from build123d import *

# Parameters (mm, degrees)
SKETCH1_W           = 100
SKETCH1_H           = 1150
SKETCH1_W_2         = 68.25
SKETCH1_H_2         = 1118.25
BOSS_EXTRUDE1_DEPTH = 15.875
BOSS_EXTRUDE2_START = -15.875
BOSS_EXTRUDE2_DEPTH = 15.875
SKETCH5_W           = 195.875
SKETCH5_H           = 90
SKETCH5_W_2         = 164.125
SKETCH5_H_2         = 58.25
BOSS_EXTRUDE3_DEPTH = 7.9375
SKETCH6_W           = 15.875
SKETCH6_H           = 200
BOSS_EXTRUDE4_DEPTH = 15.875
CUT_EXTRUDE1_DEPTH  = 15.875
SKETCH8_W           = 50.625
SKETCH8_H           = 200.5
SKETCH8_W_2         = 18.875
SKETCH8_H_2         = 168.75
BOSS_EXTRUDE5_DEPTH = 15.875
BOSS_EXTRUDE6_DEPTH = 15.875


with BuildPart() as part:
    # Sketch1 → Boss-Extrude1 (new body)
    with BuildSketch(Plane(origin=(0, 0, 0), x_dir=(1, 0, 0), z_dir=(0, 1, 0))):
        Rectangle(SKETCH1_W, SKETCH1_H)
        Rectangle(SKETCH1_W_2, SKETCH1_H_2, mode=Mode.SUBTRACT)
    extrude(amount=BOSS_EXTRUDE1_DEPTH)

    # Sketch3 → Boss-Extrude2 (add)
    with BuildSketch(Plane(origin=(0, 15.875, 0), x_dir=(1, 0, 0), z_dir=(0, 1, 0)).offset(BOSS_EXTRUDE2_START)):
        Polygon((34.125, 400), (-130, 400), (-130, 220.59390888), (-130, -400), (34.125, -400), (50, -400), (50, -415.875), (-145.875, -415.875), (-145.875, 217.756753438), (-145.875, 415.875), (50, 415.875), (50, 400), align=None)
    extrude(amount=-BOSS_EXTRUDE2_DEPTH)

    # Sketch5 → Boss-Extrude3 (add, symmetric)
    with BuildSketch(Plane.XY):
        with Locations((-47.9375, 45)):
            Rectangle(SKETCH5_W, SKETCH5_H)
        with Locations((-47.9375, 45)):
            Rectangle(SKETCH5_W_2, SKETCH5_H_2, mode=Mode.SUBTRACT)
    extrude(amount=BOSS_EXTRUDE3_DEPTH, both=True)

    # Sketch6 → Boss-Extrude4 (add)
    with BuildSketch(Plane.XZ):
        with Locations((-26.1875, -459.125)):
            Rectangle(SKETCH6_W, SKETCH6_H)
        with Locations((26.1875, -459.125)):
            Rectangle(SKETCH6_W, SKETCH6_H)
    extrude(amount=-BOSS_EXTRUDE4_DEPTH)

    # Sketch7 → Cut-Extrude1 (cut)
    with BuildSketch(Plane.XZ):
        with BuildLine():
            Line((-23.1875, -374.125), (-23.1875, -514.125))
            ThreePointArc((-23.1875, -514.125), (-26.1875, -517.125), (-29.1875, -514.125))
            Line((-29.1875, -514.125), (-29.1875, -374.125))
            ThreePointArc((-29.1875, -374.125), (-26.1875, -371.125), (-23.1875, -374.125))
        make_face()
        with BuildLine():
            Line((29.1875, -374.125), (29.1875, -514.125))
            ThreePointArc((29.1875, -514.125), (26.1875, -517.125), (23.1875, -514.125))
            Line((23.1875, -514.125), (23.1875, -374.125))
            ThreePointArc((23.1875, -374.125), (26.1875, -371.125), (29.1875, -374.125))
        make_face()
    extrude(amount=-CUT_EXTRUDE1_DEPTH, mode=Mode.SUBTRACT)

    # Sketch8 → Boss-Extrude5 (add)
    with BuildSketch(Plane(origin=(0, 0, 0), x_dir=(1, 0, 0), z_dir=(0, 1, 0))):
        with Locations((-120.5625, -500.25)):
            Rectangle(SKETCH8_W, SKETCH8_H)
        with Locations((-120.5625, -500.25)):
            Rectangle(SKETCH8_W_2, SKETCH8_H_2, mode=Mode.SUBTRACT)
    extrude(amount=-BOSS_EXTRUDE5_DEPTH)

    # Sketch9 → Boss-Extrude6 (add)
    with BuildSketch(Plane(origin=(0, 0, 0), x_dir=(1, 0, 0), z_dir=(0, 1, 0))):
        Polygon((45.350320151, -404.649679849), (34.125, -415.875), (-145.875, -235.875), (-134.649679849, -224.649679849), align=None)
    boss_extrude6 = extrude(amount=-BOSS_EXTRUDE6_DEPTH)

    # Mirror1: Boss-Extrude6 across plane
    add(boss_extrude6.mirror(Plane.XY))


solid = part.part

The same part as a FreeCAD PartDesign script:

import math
import FreeCAD as App
import Part
import Sketcher

V = App.Vector
Q = App.Units.Quantity

doc = App.newDocument("Part")
params = doc.addObject("Spreadsheet::Sheet", "Params")
for row, (alias, value) in enumerate([
    ("sketch1_width", "100 mm"),
    ("sketch1_height", "1150 mm"),
    ("sketch1_width2", "68.25 mm"),
    ("sketch1_height2", "1118.25 mm"),
    ("pad1_length", "15.875 mm"),
    ("sketch2_width", "180 mm"),
    ("sketch2_height", "800 mm"),
    ("sketch2_height2", "831.75 mm"),
    ("pad2_length", "15.875 mm"),
    ("sketch3_height", "90 mm"),
    ("sketch3_height2", "58.25 mm"),
    ("pad3_length", "15.875 mm"),
    ("sketch4_height", "200 mm"),
    ("pad4_length", "15.875 mm"),
    ("sketch5_radius", "3 mm"),
    ("sketch5_height", "140 mm"),
    ("pocket1_length", "15.875 mm"),
    ("sketch6_height", "200.5 mm"),
    ("sketch6_height2", "168.75 mm"),
    ("pad5_length", "15.875 mm"),
    ("pad6_length", "15.875 mm"),
], start=1):
    params.set(f"A{row}", alias)
    params.set(f"B{row}", "=" + value)
    params.setAlias(f"B{row}", alias)

body = doc.addObject("PartDesign::Body", "Body")

sketch1 = doc.addObject("Sketcher::SketchObject", "Sketch")
body.addObject(sketch1)
sketch1.AttachmentSupport = (doc.XZ_Plane, [""])
sketch1.MapMode = "FlatFace"
sketch1.addGeometry([
    Part.LineSegment(V(-50, -575, 0), V(-50, 575, 0)),
    Part.LineSegment(V(-50, 575, 0), V(50, 575, 0)),
    Part.LineSegment(V(50, 575, 0), V(50, -575, 0)),
    Part.LineSegment(V(50, -575, 0), V(-50, -575, 0)),
    Part.LineSegment(V(34.125, 559.125, 0), V(-34.125, 559.125, 0)),
    Part.LineSegment(V(-34.125, 559.125, 0), V(-34.125, -559.125, 0)),
    Part.LineSegment(V(-34.125, -559.125, 0), V(34.125, -559.125, 0)),
    Part.LineSegment(V(34.125, -559.125, 0), V(34.125, 559.125, 0)),
], False)
sketch1.addConstraint([
    Sketcher.Constraint("Coincident", 0, 2, 1, 1),
    Sketcher.Constraint("Coincident", 1, 2, 2, 1),
    Sketcher.Constraint("Coincident", 2, 2, 3, 1),
    Sketcher.Constraint("Coincident", 3, 2, 0, 1),
    Sketcher.Constraint("Coincident", 4, 2, 5, 1),
    Sketcher.Constraint("Coincident", 5, 2, 6, 1),
    Sketcher.Constraint("Coincident", 6, 2, 7, 1),
    Sketcher.Constraint("Coincident", 7, 2, 4, 1),
    Sketcher.Constraint("Vertical", 0),
    Sketcher.Constraint("Horizontal", 1),
    Sketcher.Constraint("Vertical", 2),
    Sketcher.Constraint("Horizontal", 3),
    Sketcher.Constraint("Horizontal", 4),
    Sketcher.Constraint("Vertical", 5),
    Sketcher.Constraint("Horizontal", 6),
    Sketcher.Constraint("Vertical", 7),
    Sketcher.Constraint("Symmetric", 0, 2, 2, 2, -1, 1),
    Sketcher.Constraint("Symmetric", 4, 2, 6, 2, -1, 1),
    Sketcher.Constraint("DistanceX", 1, 1, 1, 2, Q("100 mm")),
    Sketcher.Constraint("DistanceY", 0, 1, 0, 2, Q("1150 mm")),
    Sketcher.Constraint("DistanceX", 4, 2, 4, 1, Q("68.25 mm")),
    Sketcher.Constraint("DistanceY", 5, 2, 5, 1, Q("1118.25 mm")),
])
sketch1.setExpression("Constraints[18]", "Params.sketch1_width")
sketch1.setExpression("Constraints[19]", "Params.sketch1_height")
sketch1.setExpression("Constraints[20]", "Params.sketch1_width2")
sketch1.setExpression("Constraints[21]", "Params.sketch1_height2")
pad1 = doc.addObject("PartDesign::Pad", "Pad")
body.addObject(pad1)
pad1.Profile = sketch1
pad1.setExpression("Length", "Params.pad1_length")
pad1.Reversed = True

sketch2 = doc.addObject("Sketcher::SketchObject", "Sketch001")
body.addObject(sketch2)
sketch2.AttachmentSupport = (doc.XZ_Plane, [""])
sketch2.MapMode = "FlatFace"
sketch2.addGeometry([
    Part.LineSegment(V(-130, -400, 0), V(50, -400, 0)),
    Part.LineSegment(V(50, -400, 0), V(50, -415.875, 0)),
    Part.LineSegment(V(50, -415.875, 0), V(-145.875, -415.875, 0)),
    Part.LineSegment(V(-145.875, -415.875, 0), V(-145.875, 415.875, 0)),
    Part.LineSegment(V(-145.875, 415.875, 0), V(50, 415.875, 0)),
    Part.LineSegment(V(50, 415.875, 0), V(50, 400, 0)),
    Part.LineSegment(V(50, 400, 0), V(-130, 400, 0)),
    Part.LineSegment(V(-130, 400, 0), V(-130, -400, 0)),
], False)
sketch2.addConstraint([
    Sketcher.Constraint("Coincident", 0, 2, 1, 1),
    Sketcher.Constraint("Coincident", 1, 2, 2, 1),
    Sketcher.Constraint("Coincident", 2, 2, 3, 1),
    Sketcher.Constraint("Coincident", 3, 2, 4, 1),
    Sketcher.Constraint("Coincident", 4, 2, 5, 1),
    Sketcher.Constraint("Coincident", 5, 2, 6, 1),
    Sketcher.Constraint("Coincident", 6, 2, 7, 1),
    Sketcher.Constraint("Coincident", 7, 2, 0, 1),
    Sketcher.Constraint("Horizontal", 0),
    Sketcher.Constraint("Vertical", 1),
    Sketcher.Constraint("Horizontal", 2),
    Sketcher.Constraint("Vertical", 3),
    Sketcher.Constraint("Horizontal", 4),
    Sketcher.Constraint("Vertical", 5),
    Sketcher.Constraint("Horizontal", 6),
    Sketcher.Constraint("Vertical", 7),
    Sketcher.Constraint("Symmetric", 1, 2, 4, 2, -1),
    Sketcher.Constraint("Equal", 1, 5),
    Sketcher.Constraint("DistanceX", 0, 1, 0, 2, Q("180 mm")),
    Sketcher.Constraint("DistanceY", 7, 2, 7, 1, Q("800 mm")),
    Sketcher.Constraint("DistanceX", -1, 1, 0, 2, Q("50 mm")),
    Sketcher.Constraint("DistanceY", 3, 1, 3, 2, Q("831.75 mm")),
    Sketcher.Constraint("DistanceX", 2, 2, 2, 1, Q("195.875 mm")),
])
sketch2.setExpression("Constraints[18]", "Params.sketch2_width")
sketch2.setExpression("Constraints[19]", "Params.sketch2_height")
sketch2.setExpression("Constraints[21]", "Params.sketch2_height2")
pad2 = doc.addObject("PartDesign::Pad", "Pad001")
body.addObject(pad2)
pad2.Profile = sketch2
pad2.setExpression("Length", "Params.pad2_length")

sketch3 = doc.addObject("Sketcher::SketchObject", "Sketch002")
body.addObject(sketch3)
sketch3.AttachmentSupport = (doc.XY_Plane, [""])
sketch3.MapMode = "FlatFace"
sketch3.addGeometry([
    Part.LineSegment(V(-145.875, 90, 0), V(-145.875, 0, 0)),
    Part.LineSegment(V(-145.875, 0, 0), V(50, 0, 0)),
    Part.LineSegment(V(50, 0, 0), V(50, 90, 0)),
    Part.LineSegment(V(50, 90, 0), V(-145.875, 90, 0)),
    Part.LineSegment(V(34.125, 15.875, 0), V(-130, 15.875, 0)),
    Part.LineSegment(V(-130, 15.875, 0), V(-130, 74.125, 0)),
    Part.LineSegment(V(-130, 74.125, 0), V(34.125, 74.125, 0)),
    Part.LineSegment(V(34.125, 74.125, 0), V(34.125, 15.875, 0)),
], False)
sketch3.addConstraint([
    Sketcher.Constraint("Coincident", 0, 2, 1, 1),
    Sketcher.Constraint("Coincident", 1, 2, 2, 1),
    Sketcher.Constraint("Coincident", 2, 2, 3, 1),
    Sketcher.Constraint("Coincident", 3, 2, 0, 1),
    Sketcher.Constraint("Coincident", 4, 2, 5, 1),
    Sketcher.Constraint("Coincident", 5, 2, 6, 1),
    Sketcher.Constraint("Coincident", 6, 2, 7, 1),
    Sketcher.Constraint("Coincident", 7, 2, 4, 1),
    Sketcher.Constraint("Vertical", 0),
    Sketcher.Constraint("Horizontal", 1),
    Sketcher.Constraint("Vertical", 2),
    Sketcher.Constraint("Horizontal", 3),
    Sketcher.Constraint("Horizontal", 4),
    Sketcher.Constraint("Vertical", 5),
    Sketcher.Constraint("Horizontal", 6),
    Sketcher.Constraint("Vertical", 7),
    Sketcher.Constraint("PointOnObject", 0, 2, -1),
    Sketcher.Constraint("DistanceY", 0, 2, 0, 1, Q("90 mm")),
    Sketcher.Constraint("DistanceX", -1, 1, 1, 2, Q("50 mm")),
    Sketcher.Constraint("DistanceX", 4, 2, -1, 1, Q("130 mm")),
    Sketcher.Constraint("DistanceX", 3, 2, 6, 2, Q("180 mm")),
    Sketcher.Constraint("DistanceY", 5, 1, 5, 2, Q("58.25 mm")),
    Sketcher.Constraint("DistanceX", 1, 1, 1, 2, Q("195.875 mm")),
    Sketcher.Constraint("DistanceY", -1, 1, 4, 2, Q("15.875 mm")),
])
sketch3.setExpression("Constraints[17]", "Params.sketch3_height")
sketch3.setExpression("Constraints[21]", "Params.sketch3_height2")
pad3 = doc.addObject("PartDesign::Pad", "Pad002")
body.addObject(pad3)
pad3.Profile = sketch3
pad3.setExpression("Length", "Params.pad3_length")
pad3.Midplane = True

sketch4 = doc.addObject("Sketcher::SketchObject", "Sketch003")
body.addObject(sketch4)
sketch4.AttachmentSupport = (doc.XZ_Plane, [""])
sketch4.MapMode = "FlatFace"
sketch4.addGeometry([
    Part.LineSegment(V(-34.125, -359.125, 0), V(-34.125, -559.125, 0)),
    Part.LineSegment(V(-34.125, -559.125, 0), V(-18.25, -559.125, 0)),
    Part.LineSegment(V(-18.25, -559.125, 0), V(-18.25, -359.125, 0)),
    Part.LineSegment(V(-18.25, -359.125, 0), V(-34.125, -359.125, 0)),
    Part.LineSegment(V(18.25, -359.125, 0), V(18.25, -559.125, 0)),
    Part.LineSegment(V(18.25, -559.125, 0), V(34.125, -559.125, 0)),
    Part.LineSegment(V(34.125, -559.125, 0), V(34.125, -359.125, 0)),
    Part.LineSegment(V(34.125, -359.125, 0), V(18.25, -359.125, 0)),
], False)
sketch4.addConstraint([
    Sketcher.Constraint("Coincident", 0, 2, 1, 1),
    Sketcher.Constraint("Coincident", 1, 2, 2, 1),
    Sketcher.Constraint("Coincident", 2, 2, 3, 1),
    Sketcher.Constraint("Coincident", 3, 2, 0, 1),
    Sketcher.Constraint("Coincident", 4, 2, 5, 1),
    Sketcher.Constraint("Coincident", 5, 2, 6, 1),
    Sketcher.Constraint("Coincident", 6, 2, 7, 1),
    Sketcher.Constraint("Coincident", 7, 2, 4, 1),
    Sketcher.Constraint("Vertical", 0),
    Sketcher.Constraint("Horizontal", 1),
    Sketcher.Constraint("Vertical", 2),
    Sketcher.Constraint("Horizontal", 3),
    Sketcher.Constraint("Vertical", 4),
    Sketcher.Constraint("Horizontal", 5),
    Sketcher.Constraint("Vertical", 6),
    Sketcher.Constraint("Horizontal", 7),
    Sketcher.Constraint("Symmetric", 1, 2, 4, 2, -2),
    Sketcher.Constraint("Symmetric", 3, 2, 6, 2, -2),
    Sketcher.Constraint("DistanceY", 0, 2, 0, 1, Q("200 mm")),
    Sketcher.Constraint("DistanceX", 1, 2, 4, 2, Q("36.5 mm")),
    Sketcher.Constraint("DistanceX", 1, 1, 1, 2, Q("15.875 mm")),
    Sketcher.Constraint("DistanceY", 0, 2, -1, 1, Q("559.125 mm")),
])
sketch4.setExpression("Constraints[18]", "Params.sketch4_height")
pad4 = doc.addObject("PartDesign::Pad", "Pad003")
body.addObject(pad4)
pad4.Profile = sketch4
pad4.setExpression("Length", "Params.pad4_length")
pad4.Reversed = True

sketch5 = doc.addObject("Sketcher::SketchObject", "Sketch004")
body.addObject(sketch5)
sketch5.AttachmentSupport = (doc.XZ_Plane, [""])
sketch5.MapMode = "FlatFace"
sketch5.addGeometry([
    Part.LineSegment(V(-23.1875, -514.125, 0), V(-23.1875, -374.125, 0)),
    Part.ArcOfCircle(Part.Circle(V(-26.1875, -374.125, 0), V(0, 0, 1), 3), math.radians(0), math.radians(180)),
    Part.LineSegment(V(-29.1875, -374.125, 0), V(-29.1875, -514.125, 0)),
    Part.ArcOfCircle(Part.Circle(V(-26.1875, -514.125, 0), V(0, 0, 1), 3), math.radians(180), math.radians(360)),
    Part.LineSegment(V(29.1875, -514.125, 0), V(29.1875, -374.125, 0)),
    Part.ArcOfCircle(Part.Circle(V(26.1875, -374.125, 0), V(0, 0, 1), 3), math.radians(0), math.radians(180)),
    Part.LineSegment(V(23.1875, -374.125, 0), V(23.1875, -514.125, 0)),
    Part.ArcOfCircle(Part.Circle(V(26.1875, -514.125, 0), V(0, 0, 1), 3), math.radians(180), math.radians(360)),
], False)
sketch5.addConstraint([
    Sketcher.Constraint("Tangent", 0, 2, 1, 1),
    Sketcher.Constraint("Tangent", 1, 2, 2, 1),
    Sketcher.Constraint("Tangent", 2, 2, 3, 1),
    Sketcher.Constraint("Tangent", 3, 2, 0, 1),
    Sketcher.Constraint("Tangent", 4, 2, 5, 1),
    Sketcher.Constraint("Tangent", 5, 2, 6, 1),
    Sketcher.Constraint("Tangent", 6, 2, 7, 1),
    Sketcher.Constraint("Tangent", 7, 2, 4, 1),
    Sketcher.Constraint("Vertical", 0),
    Sketcher.Constraint("Vertical", 2),
    Sketcher.Constraint("Vertical", 4),
    Sketcher.Constraint("Vertical", 6),
    Sketcher.Constraint("Equal", 3, 5),
    Sketcher.Constraint("Symmetric", 1, 3, 5, 3, -2),
    Sketcher.Constraint("Horizontal", 3, 3, 7, 3),
    Sketcher.Constraint("Radius", 1, Q("3 mm")),
    Sketcher.Constraint("DistanceY", 0, 1, 0, 2, Q("140 mm")),
    Sketcher.Constraint("DistanceY", 1, 3, -1, 1, Q("374.125 mm")),
    Sketcher.Constraint("DistanceX", 1, 3, 5, 3, Q("52.375 mm")),
])
sketch5.setExpression("Constraints[15]", "Params.sketch5_radius")
sketch5.setExpression("Constraints[16]", "Params.sketch5_height")
pocket1 = doc.addObject("PartDesign::Pocket", "Pocket")
body.addObject(pocket1)
pocket1.Profile = sketch5
pocket1.setExpression("Length", "Params.pocket1_length")

sketch6 = doc.addObject("Sketcher::SketchObject", "Sketch005")
body.addObject(sketch6)
sketch6.AttachmentSupport = (doc.XZ_Plane, [""])
sketch6.MapMode = "FlatFace"
sketch6.addGeometry([
    Part.LineSegment(V(-145.875, 400, 0), V(-145.875, 600.5, 0)),
    Part.LineSegment(V(-145.875, 600.5, 0), V(-95.25, 600.5, 0)),
    Part.LineSegment(V(-95.25, 600.5, 0), V(-95.25, 400, 0)),
    Part.LineSegment(V(-95.25, 400, 0), V(-145.875, 400, 0)),
    Part.LineSegment(V(-111.125, 584.625, 0), V(-130, 584.625, 0)),
    Part.LineSegment(V(-130, 584.625, 0), V(-130, 415.875, 0)),
    Part.LineSegment(V(-130, 415.875, 0), V(-111.125, 415.875, 0)),
    Part.LineSegment(V(-111.125, 415.875, 0), V(-111.125, 584.625, 0)),
], False)
sketch6.addConstraint([
    Sketcher.Constraint("Coincident", 0, 2, 1, 1),
    Sketcher.Constraint("Coincident", 1, 2, 2, 1),
    Sketcher.Constraint("Coincident", 2, 2, 3, 1),
    Sketcher.Constraint("Coincident", 3, 2, 0, 1),
    Sketcher.Constraint("Coincident", 4, 2, 5, 1),
    Sketcher.Constraint("Coincident", 5, 2, 6, 1),
    Sketcher.Constraint("Coincident", 6, 2, 7, 1),
    Sketcher.Constraint("Coincident", 7, 2, 4, 1),
    Sketcher.Constraint("Vertical", 0),
    Sketcher.Constraint("Horizontal", 1),
    Sketcher.Constraint("Vertical", 2),
    Sketcher.Constraint("Horizontal", 3),
    Sketcher.Constraint("Horizontal", 4),
    Sketcher.Constraint("Vertical", 5),
    Sketcher.Constraint("Horizontal", 6),
    Sketcher.Constraint("Vertical", 7),
    Sketcher.Constraint("DistanceY", 0, 1, 0, 2, Q("200.5 mm")),
    Sketcher.Constraint("DistanceY", -1, 1, 2, 2, Q("400 mm")),
    Sketcher.Constraint("DistanceX", 4, 2, -1, 1, Q("130 mm")),
    Sketcher.Constraint("DistanceY", 5, 2, 5, 1, Q("168.75 mm")),
    Sketcher.Constraint("DistanceX", 1, 1, 1, 2, Q("50.625 mm")),
    Sketcher.Constraint("DistanceX", 4, 2, 4, 1, Q("18.875 mm")),
    Sketcher.Constraint("DistanceX", 1, 2, -1, 1, Q("95.25 mm")),
    Sketcher.Constraint("DistanceY", -1, 1, 4, 2, Q("584.625 mm")),
])
sketch6.setExpression("Constraints[16]", "Params.sketch6_height")
sketch6.setExpression("Constraints[19]", "Params.sketch6_height2")
pad5 = doc.addObject("PartDesign::Pad", "Pad004")
body.addObject(pad5)
pad5.Profile = sketch6
pad5.setExpression("Length", "Params.pad5_length")

sketch7 = doc.addObject("Sketcher::SketchObject", "Sketch006")
body.addObject(sketch7)
sketch7.AttachmentSupport = (doc.XZ_Plane, [""])
sketch7.MapMode = "FlatFace"
sketch7.addGeometry([
    Part.LineSegment(V(34.125, 415.875, 0), V(45.35032, 404.64968, 0)),
    Part.LineSegment(V(45.35032, 404.64968, 0), V(-134.64968, 224.64968, 0)),
    Part.LineSegment(V(-134.64968, 224.64968, 0), V(-145.875, 235.875, 0)),
    Part.LineSegment(V(-145.875, 235.875, 0), V(34.125, 415.875, 0)),
], False)
sketch7.addConstraint([
    Sketcher.Constraint("Coincident", 0, 2, 1, 1),
    Sketcher.Constraint("Coincident", 1, 2, 2, 1),
    Sketcher.Constraint("Coincident", 2, 2, 3, 1),
    Sketcher.Constraint("Coincident", 3, 2, 0, 1),
    Sketcher.Constraint("Perpendicular", 0, 1),
    Sketcher.Constraint("Perpendicular", 1, 2),
    Sketcher.Constraint("Perpendicular", 2, 3),
    Sketcher.Constraint("Angle", 0, Q("-45 deg")),
    Sketcher.Constraint("DistanceX", 1, 2, 0, 2, Q("180 mm")),
    Sketcher.Constraint("Distance", 0, Q("15.875 mm")),
    Sketcher.Constraint("DistanceX", 2, 2, -1, 1, Q("145.875 mm")),
    Sketcher.Constraint("DistanceY", -1, 1, 2, 2, Q("235.875 mm")),
])
pad6 = doc.addObject("PartDesign::Pad", "Pad005")
body.addObject(pad6)
pad6.Profile = sketch7
pad6.setExpression("Length", "Params.pad6_length")
doc.recompute()

mirrored = doc.addObject("PartDesign::Mirrored", "Mirrored")
body.addObject(mirrored)
mirrored.Originals = [pad6]
mirrored.MirrorPlane = (doc.XY_Plane, [""])
body.Tip = mirrored

doc.recompute()
